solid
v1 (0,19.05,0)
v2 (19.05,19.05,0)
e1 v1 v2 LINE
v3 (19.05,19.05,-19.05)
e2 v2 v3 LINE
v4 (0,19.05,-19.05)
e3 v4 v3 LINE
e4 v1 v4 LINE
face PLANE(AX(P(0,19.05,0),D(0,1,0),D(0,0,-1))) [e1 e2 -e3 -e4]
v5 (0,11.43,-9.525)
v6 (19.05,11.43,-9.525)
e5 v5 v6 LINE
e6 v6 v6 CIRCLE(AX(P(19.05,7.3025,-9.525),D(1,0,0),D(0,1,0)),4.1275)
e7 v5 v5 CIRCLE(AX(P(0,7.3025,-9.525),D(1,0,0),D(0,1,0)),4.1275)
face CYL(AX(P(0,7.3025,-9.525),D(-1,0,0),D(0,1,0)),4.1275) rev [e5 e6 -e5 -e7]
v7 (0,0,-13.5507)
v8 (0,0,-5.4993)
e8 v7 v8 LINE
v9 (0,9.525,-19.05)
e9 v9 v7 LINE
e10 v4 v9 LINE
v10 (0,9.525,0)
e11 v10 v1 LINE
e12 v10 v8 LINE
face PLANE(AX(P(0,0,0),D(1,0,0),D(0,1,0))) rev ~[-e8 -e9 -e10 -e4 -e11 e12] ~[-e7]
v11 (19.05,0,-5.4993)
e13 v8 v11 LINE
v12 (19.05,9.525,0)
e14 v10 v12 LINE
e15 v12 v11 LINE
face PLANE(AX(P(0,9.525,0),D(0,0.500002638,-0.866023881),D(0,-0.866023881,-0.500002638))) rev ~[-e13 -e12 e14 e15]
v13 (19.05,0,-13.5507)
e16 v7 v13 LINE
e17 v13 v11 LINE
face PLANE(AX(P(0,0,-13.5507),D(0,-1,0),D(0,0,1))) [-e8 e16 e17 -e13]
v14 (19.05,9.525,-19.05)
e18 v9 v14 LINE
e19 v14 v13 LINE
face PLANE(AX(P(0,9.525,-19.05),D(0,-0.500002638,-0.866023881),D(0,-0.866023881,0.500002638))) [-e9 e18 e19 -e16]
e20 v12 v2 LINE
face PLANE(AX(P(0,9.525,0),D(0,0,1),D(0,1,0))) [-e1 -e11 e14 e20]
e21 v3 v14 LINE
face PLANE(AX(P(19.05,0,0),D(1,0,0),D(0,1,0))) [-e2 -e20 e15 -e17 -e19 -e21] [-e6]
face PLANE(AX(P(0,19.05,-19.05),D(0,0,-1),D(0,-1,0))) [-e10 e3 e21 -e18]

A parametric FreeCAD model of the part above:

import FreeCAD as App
import Part
import Sketcher
from FreeCAD import Vector
Q = App.Units.Quantity

doc = App.newDocument("Part")
body = doc.addObject("PartDesign::Body", "Body")

sketch1 = doc.addObject("Sketcher::SketchObject", "Sketch")
body.addObject(sketch1)
sketch1.AttachmentSupport = (doc.YZ_Plane, [""])
sketch1.MapMode = "FlatFace"
sketch1.addGeometry([
    Part.LineSegment(Vector(19.1, 0, 0), Vector(9.5, 0, 0)),
    Part.LineSegment(Vector(9.5, 0, 0), Vector(0, -5.5, 0)),
    Part.LineSegment(Vector(0, -5.5, 0), Vector(0, -13.6, 0)),
    Part.LineSegment(Vector(0, -13.6, 0), Vector(9.5, -19.1, 0)),
    Part.LineSegment(Vector(9.5, -19.1, 0), Vector(19.1, -19.1, 0)),
    Part.LineSegment(Vector(19.1, -19.1, 0), Vector(19.1, 0, 0)),
    Part.Circle(Vector(7.3, -9.5, 0), Vector(0, 0, 1), 4.1),
], False)
sketch1.addConstraint([
    Sketcher.Constraint("Coincident", 0, 2, 1, 1),
    Sketcher.Constraint("Coincident", 1, 2, 2, 1),
    Sketcher.Constraint("Coincident", 2, 2, 3, 1),
    Sketcher.Constraint("Coincident", 3, 2, 4, 1),
    Sketcher.Constraint("Coincident", 4, 2, 5, 1),
    Sketcher.Constraint("Coincident", 5, 2, 0, 1),
    Sketcher.Constraint("Horizontal", 0),
    Sketcher.Constraint("Vertical", 2),
    Sketcher.Constraint("Horizontal", 4),
    Sketcher.Constraint("Vertical", 5),
    Sketcher.Constraint("PointOnObject", 0, 2, -1),
    Sketcher.Constraint("PointOnObject", 1, 2, -2),
    Sketcher.Constraint("Vertical", 0, 2, 3, 2),
    Sketcher.Constraint("Equal", 1, 3),
    Sketcher.Constraint("Diameter", 6, Q("0.325 in")),
    Sketcher.Constraint("Angle", 3, Q("-30.0002 deg")),
    Sketcher.Constraint("DistanceY", 5, 1, 5, 2, Q("0.75 in")),
    Sketcher.Constraint("DistanceX", -1, 1, 4, 2, Q("0.75 in")),
    Sketcher.Constraint("DistanceX", 0, 2, 0, 1, Q("0.375 in")),
    Sketcher.Constraint("DistanceY", 6, 3, -1, 1, Q("0.375 in")),
    Sketcher.Constraint("DistanceX", -1, 1, 6, 3, Q("0.2875 in")),
])
pad1 = doc.addObject("PartDesign::Pad", "Pad")
body.addObject(pad1)
pad1.Profile = sketch1
pad1.Length = Q("0.75 in")

doc.recompute()
